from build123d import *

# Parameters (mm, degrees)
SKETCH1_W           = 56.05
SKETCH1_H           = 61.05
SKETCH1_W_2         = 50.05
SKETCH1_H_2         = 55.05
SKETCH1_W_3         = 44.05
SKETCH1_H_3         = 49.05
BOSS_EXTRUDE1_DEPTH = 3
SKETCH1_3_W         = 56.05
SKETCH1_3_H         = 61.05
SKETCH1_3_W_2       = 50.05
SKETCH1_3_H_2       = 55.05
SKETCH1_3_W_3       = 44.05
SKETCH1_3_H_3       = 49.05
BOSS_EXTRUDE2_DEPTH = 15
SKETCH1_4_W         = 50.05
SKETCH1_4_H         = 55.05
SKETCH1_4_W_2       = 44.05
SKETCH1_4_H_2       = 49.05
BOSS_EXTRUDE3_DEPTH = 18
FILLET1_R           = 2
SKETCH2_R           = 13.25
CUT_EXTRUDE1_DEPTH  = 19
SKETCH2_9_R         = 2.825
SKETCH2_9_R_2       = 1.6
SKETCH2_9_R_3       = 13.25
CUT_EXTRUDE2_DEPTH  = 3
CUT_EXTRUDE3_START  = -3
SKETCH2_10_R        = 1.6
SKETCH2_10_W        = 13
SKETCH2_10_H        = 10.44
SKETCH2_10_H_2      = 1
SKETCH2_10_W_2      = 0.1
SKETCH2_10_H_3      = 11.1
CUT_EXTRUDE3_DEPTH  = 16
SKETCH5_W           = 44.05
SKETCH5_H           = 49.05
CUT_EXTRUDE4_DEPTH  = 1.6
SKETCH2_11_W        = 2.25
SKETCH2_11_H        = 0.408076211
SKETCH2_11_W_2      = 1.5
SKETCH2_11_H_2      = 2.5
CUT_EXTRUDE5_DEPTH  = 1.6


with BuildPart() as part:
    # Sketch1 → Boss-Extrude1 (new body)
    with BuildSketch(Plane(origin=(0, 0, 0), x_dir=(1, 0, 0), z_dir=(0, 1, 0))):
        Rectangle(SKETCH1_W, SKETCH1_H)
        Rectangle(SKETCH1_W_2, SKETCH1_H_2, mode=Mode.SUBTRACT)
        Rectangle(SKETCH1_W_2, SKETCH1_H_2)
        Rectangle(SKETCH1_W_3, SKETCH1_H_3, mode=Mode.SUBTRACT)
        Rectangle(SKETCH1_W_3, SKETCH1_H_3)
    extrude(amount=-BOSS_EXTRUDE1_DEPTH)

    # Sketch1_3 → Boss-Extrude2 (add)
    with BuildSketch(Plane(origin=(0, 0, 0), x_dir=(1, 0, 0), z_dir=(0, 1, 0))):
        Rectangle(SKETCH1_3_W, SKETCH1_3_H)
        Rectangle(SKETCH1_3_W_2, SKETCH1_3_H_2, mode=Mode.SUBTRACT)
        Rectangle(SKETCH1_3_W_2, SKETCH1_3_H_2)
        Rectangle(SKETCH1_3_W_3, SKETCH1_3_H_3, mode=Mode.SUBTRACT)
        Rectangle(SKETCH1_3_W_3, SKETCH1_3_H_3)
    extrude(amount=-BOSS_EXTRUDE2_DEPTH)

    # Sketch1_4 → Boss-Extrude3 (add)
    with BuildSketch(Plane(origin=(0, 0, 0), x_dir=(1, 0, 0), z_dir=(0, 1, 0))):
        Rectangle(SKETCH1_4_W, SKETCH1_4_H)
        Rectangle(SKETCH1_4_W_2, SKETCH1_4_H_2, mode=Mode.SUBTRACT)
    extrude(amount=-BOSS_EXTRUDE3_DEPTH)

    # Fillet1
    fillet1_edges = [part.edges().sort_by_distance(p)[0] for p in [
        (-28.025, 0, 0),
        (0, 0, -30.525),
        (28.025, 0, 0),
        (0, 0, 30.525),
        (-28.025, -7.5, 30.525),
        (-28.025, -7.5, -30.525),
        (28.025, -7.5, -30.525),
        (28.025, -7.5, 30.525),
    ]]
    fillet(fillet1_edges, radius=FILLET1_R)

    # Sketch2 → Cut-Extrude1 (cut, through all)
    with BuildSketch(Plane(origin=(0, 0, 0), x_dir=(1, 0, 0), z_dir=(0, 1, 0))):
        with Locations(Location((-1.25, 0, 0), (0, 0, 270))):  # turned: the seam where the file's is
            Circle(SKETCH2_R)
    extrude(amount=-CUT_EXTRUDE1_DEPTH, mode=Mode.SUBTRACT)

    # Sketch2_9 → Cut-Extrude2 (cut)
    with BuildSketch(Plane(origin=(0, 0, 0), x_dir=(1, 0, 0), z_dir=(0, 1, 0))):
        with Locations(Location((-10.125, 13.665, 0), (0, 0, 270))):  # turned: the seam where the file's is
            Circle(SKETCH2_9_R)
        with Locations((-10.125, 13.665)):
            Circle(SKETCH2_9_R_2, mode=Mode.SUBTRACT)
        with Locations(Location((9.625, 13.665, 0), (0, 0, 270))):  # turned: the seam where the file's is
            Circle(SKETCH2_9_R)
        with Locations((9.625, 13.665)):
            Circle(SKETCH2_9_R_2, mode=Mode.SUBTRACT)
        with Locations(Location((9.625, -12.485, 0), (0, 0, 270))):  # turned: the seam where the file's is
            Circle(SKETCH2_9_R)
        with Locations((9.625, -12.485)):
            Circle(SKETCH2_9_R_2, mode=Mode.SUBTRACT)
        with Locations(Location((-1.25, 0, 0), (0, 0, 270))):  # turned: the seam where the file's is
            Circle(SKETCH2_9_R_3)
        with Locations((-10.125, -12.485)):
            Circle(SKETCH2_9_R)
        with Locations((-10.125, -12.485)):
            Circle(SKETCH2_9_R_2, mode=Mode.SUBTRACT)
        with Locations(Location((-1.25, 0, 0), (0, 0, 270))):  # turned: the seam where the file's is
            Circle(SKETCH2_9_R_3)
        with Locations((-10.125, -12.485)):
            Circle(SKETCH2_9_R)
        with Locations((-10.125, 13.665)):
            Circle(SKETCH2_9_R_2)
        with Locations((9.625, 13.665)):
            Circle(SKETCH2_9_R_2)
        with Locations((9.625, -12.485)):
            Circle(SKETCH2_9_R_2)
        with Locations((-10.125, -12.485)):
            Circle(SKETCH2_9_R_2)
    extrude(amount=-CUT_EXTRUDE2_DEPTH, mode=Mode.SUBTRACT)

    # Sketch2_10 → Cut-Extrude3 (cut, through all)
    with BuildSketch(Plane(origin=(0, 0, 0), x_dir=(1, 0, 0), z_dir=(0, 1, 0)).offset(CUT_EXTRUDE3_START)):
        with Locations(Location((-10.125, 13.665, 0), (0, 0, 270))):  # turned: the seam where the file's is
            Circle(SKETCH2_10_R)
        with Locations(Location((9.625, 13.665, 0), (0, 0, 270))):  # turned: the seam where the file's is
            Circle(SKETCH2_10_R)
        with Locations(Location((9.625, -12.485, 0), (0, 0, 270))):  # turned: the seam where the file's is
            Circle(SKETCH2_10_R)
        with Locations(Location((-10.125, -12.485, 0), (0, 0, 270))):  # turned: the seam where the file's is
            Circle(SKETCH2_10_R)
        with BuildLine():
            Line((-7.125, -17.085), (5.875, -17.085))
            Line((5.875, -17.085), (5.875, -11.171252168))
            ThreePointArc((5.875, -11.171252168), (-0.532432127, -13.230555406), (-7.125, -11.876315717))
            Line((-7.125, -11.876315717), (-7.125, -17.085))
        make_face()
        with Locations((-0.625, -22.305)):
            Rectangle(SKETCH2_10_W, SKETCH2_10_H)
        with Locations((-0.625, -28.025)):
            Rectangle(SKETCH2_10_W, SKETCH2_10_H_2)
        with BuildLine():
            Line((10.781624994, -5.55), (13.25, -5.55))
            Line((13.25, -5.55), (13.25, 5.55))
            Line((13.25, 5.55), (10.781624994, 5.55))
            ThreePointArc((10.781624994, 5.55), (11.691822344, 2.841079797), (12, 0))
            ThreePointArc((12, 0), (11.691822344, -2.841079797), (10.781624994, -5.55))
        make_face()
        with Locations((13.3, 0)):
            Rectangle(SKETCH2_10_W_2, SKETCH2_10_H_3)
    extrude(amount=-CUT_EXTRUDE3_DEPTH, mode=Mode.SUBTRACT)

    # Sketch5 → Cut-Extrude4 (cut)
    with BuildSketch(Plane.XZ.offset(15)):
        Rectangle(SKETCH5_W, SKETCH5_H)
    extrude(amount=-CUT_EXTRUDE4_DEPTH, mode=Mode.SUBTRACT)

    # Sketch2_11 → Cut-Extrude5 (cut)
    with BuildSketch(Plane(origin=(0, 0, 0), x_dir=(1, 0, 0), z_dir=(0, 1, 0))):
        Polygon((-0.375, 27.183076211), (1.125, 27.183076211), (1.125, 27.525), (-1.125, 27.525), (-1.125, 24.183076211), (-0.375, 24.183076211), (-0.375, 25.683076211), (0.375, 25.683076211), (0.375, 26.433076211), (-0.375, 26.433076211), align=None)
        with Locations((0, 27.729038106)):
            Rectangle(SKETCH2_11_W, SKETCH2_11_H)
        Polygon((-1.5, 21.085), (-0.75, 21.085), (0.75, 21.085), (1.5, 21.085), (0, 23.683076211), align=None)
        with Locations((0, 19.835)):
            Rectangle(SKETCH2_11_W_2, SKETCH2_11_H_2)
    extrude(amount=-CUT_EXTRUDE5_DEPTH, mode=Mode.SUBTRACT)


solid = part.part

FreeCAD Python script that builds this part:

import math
import FreeCAD as App
import Part
import Sketcher
Q = App.Units.Quantity


def edges_at(feature, points):
    """Names of the edges that pass closest to the given points."""
    edges = feature.Shape.Edges
    near = lambda p: min(range(len(edges)), key=lambda i: edges[i].distToShape(Part.Vertex(*p))[0])
    return sorted({f"Edge{near(p) + 1}" for p in points})

doc = App.newDocument("Part")
params = doc.addObject("Spreadsheet::Sheet", "Params")
for row, (alias, value) in enumerate([
    ("sketch1_width", "56.05 mm"),
    ("sketch1_height", "61.05 mm"),
    ("pad1_length", "3 mm"),
    ("sketch2_width", "56.05 mm"),
    ("sketch2_height", "61.05 mm"),
    ("pad2_length", "15 mm"),
    ("sketch3_width", "50.05 mm"),
    ("sketch3_height", "55.05 mm"),
    ("pad3_length", "18 mm"),
    ("fillet_radius", "2 mm"),
    ("sketch4_diameter", "26.5 mm"),
    ("sketch5_diameter", "5.65 mm"),
    ("sketch5_radius", "13.25 mm"),
    ("pocket2_length", "3 mm"),
    ("sketch6_diameter", "3.2 mm"),
    ("sketch6_width", "13 mm"),
    ("sketch6_radius", "13.25 mm"),
    ("sketch6_height", "11.1 mm"),
    ("sketch7_width", "44.05 mm"),
    ("sketch7_height", "49.05 mm"),
    ("pocket4_length", "1.6 mm"),
    ("sketch8_length", "3 mm"),
    ("sketch8_width", "1.5 mm"),
    ("sketch8_height", "2.5 mm"),
    ("pocket5_length", "1.6 mm"),
], start=1):
    params.set(f"A{row}", alias)
    params.set(f"B{row}", "=" + value)
    params.setAlias(f"B{row}", alias)

body = doc.addObject("PartDesign::Body", "Body")

# Sketch on XZ plane
sketch1 = body.newObject("Sketcher::SketchObject", "Sketch")
sketch1.AttachmentSupport = (doc.getObject("XZ_Plane"), [""])
sketch1.MapMode = "FlatFace"
sketch1.addGeometry([
    Part.LineSegment(App.Vector(-28, -31, 0), App.Vector(-28, 31, 0)),
    Part.LineSegment(App.Vector(-28, 31, 0), App.Vector(28, 31, 0)),
    Part.LineSegment(App.Vector(28, 31, 0), App.Vector(28, -31, 0)),
    Part.LineSegment(App.Vector(28, -31, 0), App.Vector(-28, -31, 0)),
], False)
sketch1.addConstraint([
    Sketcher.Constraint("Coincident", 0, 2, 1, 1),
    Sketcher.Constraint("Coincident", 1, 2, 2, 1),
    Sketcher.Constraint("Coincident", 2, 2, 3, 1),
    Sketcher.Constraint("Coincident", 3, 2, 0, 1),
    Sketcher.Constraint("Vertical", 0),
    Sketcher.Constraint("Horizontal", 1),
    Sketcher.Constraint("Vertical", 2),
    Sketcher.Constraint("Horizontal", 3),
    Sketcher.Constraint("Symmetric", 0, 2, 2, 2, -1, 1),
    Sketcher.Constraint("DistanceX", 1, 1, 1, 2, 56.05),
    Sketcher.Constraint("DistanceY", 0, 1, 0, 2, 61.05),
])
sketch1.setExpression("Constraints[9]", "Params.sketch1_width")
sketch1.setExpression("Constraints[10]", "Params.sketch1_height")
pad1 = body.newObject("PartDesign::Pad", "Pad")
pad1.Profile = sketch1
pad1.setExpression("Length", "Params.pad1_length")

# Sketch on XZ plane
sketch2 = body.newObject("Sketcher::SketchObject", "Sketch001")
sketch2.AttachmentSupport = (doc.getObject("XZ_Plane"), [""])
sketch2.MapMode = "FlatFace"
sketch2.addGeometry([
    Part.LineSegment(App.Vector(-28, -31, 0), App.Vector(-28, 31, 0)),
    Part.LineSegment(App.Vector(-28, 31, 0), App.Vector(28, 31, 0)),
    Part.LineSegment(App.Vector(28, 31, 0), App.Vector(28, -31, 0)),
    Part.LineSegment(App.Vector(28, -31, 0), App.Vector(-28, -31, 0)),
], False)
sketch2.addConstraint([
    Sketcher.Constraint("Coincident", 0, 2, 1, 1),
    Sketcher.Constraint("Coincident", 1, 2, 2, 1),
    Sketcher.Constraint("Coincident", 2, 2, 3, 1),
    Sketcher.Constraint("Coincident", 3, 2, 0, 1),
    Sketcher.Constraint("Vertical", 0),
    Sketcher.Constraint("Horizontal", 1),
    Sketcher.Constraint("Vertical", 2),
    Sketcher.Constraint("Horizontal", 3),
    Sketcher.Constraint("Symmetric", 0, 2, 2, 2, -1, 1),
    Sketcher.Constraint("DistanceX", 1, 1, 1, 2, 56.05),
    Sketcher.Constraint("DistanceY", 0, 1, 0, 2, 61.05),
])
sketch2.setExpression("Constraints[9]", "Params.sketch2_width")
sketch2.setExpression("Constraints[10]", "Params.sketch2_height")
pad2 = body.newObject("PartDesign::Pad", "Pad001")
pad2.Profile = sketch2
pad2.setExpression("Length", "Params.pad2_length")

# Sketch on XZ plane
sketch3 = body.newObject("Sketcher::SketchObject", "Sketch002")
sketch3.AttachmentSupport = (doc.getObject("XZ_Plane"), [""])
sketch3.MapMode = "FlatFace"
sketch3.addGeometry([
    Part.LineSegment(App.Vector(-25, -28, 0), App.Vector(-25, 28, 0)),  # 0
    Part.LineSegment(App.Vector(-25, 28, 0), App.Vector(25, 28, 0)),  # 1
    Part.LineSegment(App.Vector(25, 28, 0), App.Vector(25, -28, 0)),  # 2
    Part.LineSegment(App.Vector(25, -28, 0), App.Vector(-25, -28, 0)),  # 3
    Part.LineSegment(App.Vector(22, 25, 0), App.Vector(-22, 25, 0)),  # 4
    Part.LineSegment(App.Vector(-22, 25, 0), App.Vector(-22, -25, 0)),  # 5
    Part.LineSegment(App.Vector(-22, -25, 0), App.Vector(22, -25, 0)),  # 6
    Part.LineSegment(App.Vector(22, -25, 0), App.Vector(22, 25, 0)),  # 7
], False)
sketch3.addConstraint([
    Sketcher.Constraint("Coincident", 0, 2, 1, 1),
    Sketcher.Constraint("Coincident", 1, 2, 2, 1),
    Sketcher.Constraint("Coincident", 2, 2, 3, 1),
    Sketcher.Constraint("Coincident", 3, 2, 0, 1),
    Sketcher.Constraint("Coincident", 4, 2, 5, 1),
    Sketcher.Constraint("Coincident", 5, 2, 6, 1),
    Sketcher.Constraint("Coincident", 6, 2, 7, 1),
    Sketcher.Constraint("Coincident", 7, 2, 4, 1),
    Sketcher.Constraint("Vertical", 0),
    Sketcher.Constraint("Horizontal", 1),
    Sketcher.Constraint("Vertical", 2),
    Sketcher.Constraint("Horizontal", 3),
    Sketcher.Constraint("Horizontal", 4),
    Sketcher.Constraint("Vertical", 5),
    Sketcher.Constraint("Horizontal", 6),
    Sketcher.Constraint("Vertical", 7),
    Sketcher.Constraint("Symmetric", 0, 2, 2, 2, -1, 1),
    Sketcher.Constraint("Symmetric", 4, 2, 6, 2, -1, 1),
    Sketcher.Constraint("DistanceX", 0, 2, 4, 2, 3.0),
    Sketcher.Constraint("DistanceY", 4, 2, 0, 2, 3.0),
    Sketcher.Constraint("DistanceX", 1, 1, 1, 2, 50.05),
    Sketcher.Constraint("DistanceY", 0, 1, 0, 2, 55.05),
])
sketch3.setExpression("Constraints[20]", "Params.sketch3_width")
sketch3.setExpression("Constraints[21]", "Params.sketch3_height")
pad3 = body.newObject("PartDesign::Pad", "Pad002")
pad3.Profile = sketch3
pad3.setExpression("Length", "Params.pad3_length")
doc.recompute()

fillet = body.newObject("PartDesign::Fillet", "Fillet")
fillet.Base = (pad3, edges_at(pad3, [
    (-28.025, 0, 0),
    (0, 0, -30.525),
    (28.025, 0, 0),
    (0, 0, 30.525),
    (-28.025, -7.5, 30.525),
    (-28.025, -7.5, -30.525),
    (28.025, -7.5, -30.525),
    (28.025, -7.5, 30.525),
]))
fillet.setExpression("Radius", "Params.fillet_radius")

# Sketch on XZ plane
sketch4 = body.newObject("Sketcher::SketchObject", "Sketch003")
sketch4.AttachmentSupport = (doc.getObject("XZ_Plane"), [""])
sketch4.MapMode = "FlatFace"
sketch4.addGeometry(Part.Circle(App.Vector(-1, 0, 0), App.Vector(0, 0, 1), 13), False)
sketch4.addConstraint([
    Sketcher.Constraint("PointOnObject", 0, 3, -1),
    Sketcher.Constraint("Diameter", 0, 26.5),
    Sketcher.Constraint("DistanceX", 0, 3, -1, 1, 1.25),
])
sketch4.setExpression("Constraints[1]", "Params.sketch4_diameter")
pocket1 = body.newObject("PartDesign::Pocket", "Pocket")
pocket1.Profile = sketch4
pocket1.Type = "ThroughAll"
pocket1.Reversed = True

# Sketch on XZ plane
sketch5 = body.newObject("Sketcher::SketchObject", "Sketch004")
sketch5.AttachmentSupport = (doc.getObject("XZ_Plane"), [""])
sketch5.MapMode = "FlatFace"
sketch5.addGeometry([
    Part.Circle(App.Vector(-10.1, -13.7, 0), App.Vector(0, 0, 1), 2.8),  # 0
    Part.Circle(App.Vector(9.6, -13.7, 0), App.Vector(0, 0, 1), 2.8),  # 1
    Part.Circle(App.Vector(9.6, 12.5, 0), App.Vector(0, 0, 1), 2.8),  # 2
    Part.ArcOfCircle(Part.Circle(App.Vector(-1.2, 0, 0), App.Vector(0, 0, 1), 13.2), math.radians(133), math.radians(478)),  # 3
    Part.ArcOfCircle(Part.Circle(App.Vector(-10.1, 12.5, 0), App.Vector(0, 0, 1), 2.8), math.radians(-15), math.radians(266)),  # 4
], False)
sketch5.addConstraint([
    Sketcher.Constraint("Coincident", 3, 1, 4, 2),
    Sketcher.Constraint("Coincident", 4, 1, 3, 2),
    Sketcher.Constraint("Equal", 0, 1),
    Sketcher.Constraint("Equal", 1, 2),
    Sketcher.Constraint("Equal", 2, 4),
    Sketcher.Constraint("PointOnObject", 3, 3, -1),
    Sketcher.Constraint("Horizontal", 0, 3, 1, 3),
    Sketcher.Constraint("Horizontal", 2, 3, 4, 3),
    Sketcher.Constraint("Vertical", 1, 3, 2, 3),
    Sketcher.Constraint("Vertical", 0, 3, 4, 3),
    Sketcher.Constraint("Diameter", 0, 5.65),
    Sketcher.Constraint("Radius", 3, 13.25),
    Sketcher.Constraint("DistanceX", 3, 3, -1, 1, 1.25),
    Sketcher.Constraint("DistanceX", 0, 3, 1, 3, 19.75),
    Sketcher.Constraint("DistanceY", 1, 3, 2, 3, 26.15),
    Sketcher.Constraint("DistanceX", 0, 3, -1, 1, 10.125),
    Sketcher.Constraint("DistanceY", 0, 3, -1, 1, 13.665),
])
sketch5.setExpression("Constraints[10]", "Params.sketch5_diameter")
sketch5.setExpression("Constraints[11]", "Params.sketch5_radius")
pocket2 = body.newObject("PartDesign::Pocket", "Pocket001")
pocket2.Profile = sketch5
pocket2.setExpression("Length", "Params.pocket2_length")
pocket2.Reversed = True

# Sketch on XZ plane
sketch6 = body.newObject("Sketcher::SketchObject", "Sketch005")
sketch6.AttachmentSupport = (doc.getObject("XZ_Plane"), [""])
sketch6.MapMode = "FlatFace"
sketch6.AttachmentOffset = App.Placement(App.Vector(0, 0, 3), App.Rotation())
sketch6.addGeometry([
    Part.Circle(App.Vector(-10.1, -13.7, 0), App.Vector(0, 0, 1), 1.6),  # 0
    Part.Circle(App.Vector(9.6, -13.7, 0), App.Vector(0, 0, 1), 1.6),  # 1
    Part.Circle(App.Vector(9.6, 12.5, 0), App.Vector(0, 0, 1), 1.6),  # 2
    Part.Circle(App.Vector(-10.1, 12.5, 0), App.Vector(0, 0, 1), 1.6),  # 3
    Part.ArcOfCircle(Part.Circle(App.Vector(-1.2, 0, 0), App.Vector(0, 0, 1), 13.3), math.radians(57), math.radians(116)),  # 4
    Part.LineSegment(App.Vector(-7.1, 11.9, 0), App.Vector(-7.1, 28.5, 0)),  # 5
    Part.LineSegment(App.Vector(-7.1, 28.5, 0), App.Vector(5.9, 28.5, 0)),  # 6
    Part.LineSegment(App.Vector(5.9, 28.5, 0), App.Vector(5.9, 11.2, 0)),  # 7
    Part.LineSegment(App.Vector(10.8, 5.5, 0), App.Vector(13.3, 5.5, 0)),  # 8
    Part.LineSegment(App.Vector(13.3, 5.5, 0), App.Vector(13.3, -5.5, 0)),  # 9
    Part.LineSegment(App.Vector(13.3, -5.5, 0), App.Vector(10.8, -5.5, 0)),  # 10
    Part.ArcOfCircle(Part.Circle(App.Vector(-1.3, 0, 0), App.Vector(0, 0, 1), 13.3), math.radians(-25), math.radians(0)),  # 11
    Part.ArcOfCircle(Part.Circle(App.Vector(-1.3, 0, 0), App.Vector(0, 0, 1), 13.3), math.radians(0), math.radians(25)),  # 12
], False)
sketch6.addConstraint([
    Sketcher.Constraint("Coincident", 4, 2, 5, 1),
    Sketcher.Constraint("Coincident", 5, 2, 6, 1),
    Sketcher.Constraint("Coincident", 6, 2, 7, 1),
    Sketcher.Constraint("Coincident", 7, 2, 4, 1),
    Sketcher.Constraint("Coincident", 8, 2, 9, 1),
    Sketcher.Constraint("Coincident", 9, 2, 10, 1),
    Sketcher.Constraint("Coincident", 10, 2, 11, 1),
    Sketcher.Constraint("Tangent", 11, 2, 12, 1),
    Sketcher.Constraint("Coincident", 12, 2, 8, 1),
    Sketcher.Constraint("Vertical", 5),
    Sketcher.Constraint("Horizontal", 6),
    Sketcher.Constraint("Vertical", 7),
    Sketcher.Constraint("Horizontal", 8),
    Sketcher.Constraint("Vertical", 9),
    Sketcher.Constraint("Horizontal", 10),
    Sketcher.Constraint("Coincident", 11, 3, 4, 3),
    Sketcher.Constraint("Equal", 0, 1),
    Sketcher.Constraint("Equal", 1, 2),
    Sketcher.Constraint("Equal", 2, 3),
    Sketcher.Constraint("Equal", 4, 11),
    Sketcher.Constraint("Equal", 11, 12),
    Sketcher.Constraint("Symmetric", 10, 2, 12, 2, -1),
    Sketcher.Constraint("PointOnObject", 11, 2, -1),
    Sketcher.Constraint("Horizontal", 0, 3, 1, 3),
    Sketcher.Constraint("Horizontal", 2, 3, 3, 3),
    Sketcher.Constraint("Vertical", 1, 3, 2, 3),
    Sketcher.Constraint("Vertical", 0, 3, 3, 3),
    Sketcher.Constraint("Diameter", 0, 3.2),
    Sketcher.Constraint("DistanceX", 6, 1, 6, 2, 13.0),
    Sketcher.Constraint("Radius", 4, 13.25),
    Sketcher.Constraint("DistanceY", 9, 2, 9, 1, 11.1),
    Sketcher.Constraint("DistanceX", -1, 1, 11, 2, 12.0),
    Sketcher.Constraint("DistanceX", 3, 3, 4, 2, 3.0),
    Sketcher.Constraint("DistanceX", 4, 3, 8, 2, 14.6),
    Sketcher.Constraint("DistanceX", 0, 3, 1, 3, 19.75),
    Sketcher.Constraint("DistanceY", 1, 3, 2, 3, 26.15),
    Sketcher.Constraint("DistanceY", 3, 3, 5, 2, 16.04),
    Sketcher.Constraint("DistanceX", 0, 3, -1, 1, 10.125),
    Sketcher.Constraint("DistanceY", 0, 3, -1, 1, 13.665),
])
sketch6.setExpression("Constraints[27]", "Params.sketch6_diameter")
sketch6.setExpression("Constraints[28]", "Params.sketch6_width")
sketch6.setExpression("Constraints[29]", "Params.sketch6_radius")
sketch6.setExpression("Constraints[30]", "Params.sketch6_height")
pocket3 = body.newObject("PartDesign::Pocket", "Pocket002")
pocket3.Profile = sketch6
pocket3.Type = "ThroughAll"
pocket3.Reversed = True

# Sketch on XZ plane
sketch7 = body.newObject("Sketcher::SketchObject", "Sketch006")
sketch7.AttachmentSupport = (doc.getObject("XZ_Plane"), [""])
sketch7.MapMode = "FlatFace"
sketch7.AttachmentOffset = App.Placement(App.Vector(0, 0, 15), App.Rotation())
sketch7.addGeometry([
    Part.LineSegment(App.Vector(-22, 25, 0), App.Vector(-22, -25, 0)),
    Part.LineSegment(App.Vector(-22, -25, 0), App.Vector(22, -25, 0)),
    Part.LineSegment(App.Vector(22, -25, 0), App.Vector(22, 25, 0)),
    Part.LineSegment(App.Vector(22, 25, 0), App.Vector(-22, 25, 0)),
], False)
sketch7.addConstraint([
    Sketcher.Constraint("Coincident", 0, 2, 1, 1),
    Sketcher.Constraint("Coincident", 1, 2, 2, 1),
    Sketcher.Constraint("Coincident", 2, 2, 3, 1),
    Sketcher.Constraint("Coincident", 3, 2, 0, 1),
    Sketcher.Constraint("Vertical", 0),
    Sketcher.Constraint("Horizontal", 1),
    Sketcher.Constraint("Vertical", 2),
    Sketcher.Constraint("Horizontal", 3),
    Sketcher.Constraint("Symmetric", 0, 2, 2, 2, -1, 1),
    Sketcher.Constraint("DistanceX", 1, 1, 1, 2, 44.05),
    Sketcher.Constraint("DistanceY", 0, 2, 0, 1, 49.05),
])
sketch7.setExpression("Constraints[9]", "Params.sketch7_width")
sketch7.setExpression("Constraints[10]", "Params.sketch7_height")
pocket4 = body.newObject("PartDesign::Pocket", "Pocket003")
pocket4.Profile = sketch7
pocket4.setExpression("Length", "Params.pocket4_length")

# Sketch on XZ plane
sketch8 = body.newObject("Sketcher::SketchObject", "Sketch007")
sketch8.AttachmentSupport = (doc.getObject("XZ_Plane"), [""])
sketch8.MapMode = "FlatFace"
sketch8.addGeometry([
    Part.LineSegment(App.Vector(-0.4, -27.2, 0), App.Vector(1.1, -27.2, 0)),  # 0
    Part.LineSegment(App.Vector(1.1, -27.2, 0), App.Vector(1.1, -27.9, 0)),  # 1
    Part.LineSegment(App.Vector(1.1, -27.9, 0), App.Vector(-1.1, -27.9, 0)),  # 2
    Part.LineSegment(App.Vector(-1.1, -27.9, 0), App.Vector(-1.1, -24.2, 0)),  # 3
    Part.LineSegment(App.Vector(-1.1, -24.2, 0), App.Vector(-0.4, -24.2, 0)),  # 4
    Part.LineSegment(App.Vector(-0.4, -24.2, 0), App.Vector(-0.4, -25.7, 0)),  # 5
    Part.LineSegment(App.Vector(-0.4, -25.7, 0), App.Vector(0.4, -25.7, 0)),  # 6
    Part.LineSegment(App.Vector(0.4, -25.7, 0), App.Vector(0.4, -26.4, 0)),  # 7
    Part.LineSegment(App.Vector(0.4, -26.4, 0), App.Vector(-0.4, -26.4, 0)),  # 8
    Part.LineSegment(App.Vector(-0.4, -26.4, 0), App.Vector(-0.4, -27.2, 0)),  # 9
    Part.LineSegment(App.Vector(-1.5, -21.1, 0), App.Vector(-0.8, -21.1, 0)),  # 10
    Part.LineSegment(App.Vector(-0.8, -21.1, 0), App.Vector(-0.8, -18.6, 0)),  # 11
    Part.LineSegment(App.Vector(-0.8, -18.6, 0), App.Vector(0.8, -18.6, 0)),  # 12
    Part.LineSegment(App.Vector(0.8, -18.6, 0), App.Vector(0.8, -21.1, 0)),  # 13
    Part.LineSegment(App.Vector(0.8, -21.1, 0), App.Vector(1.5, -21.1, 0)),  # 14
    Part.LineSegment(App.Vector(1.5, -21.1, 0), App.Vector(0, -23.7, 0)),  # 15
    Part.LineSegment(App.Vector(0, -23.7, 0), App.Vector(-1.5, -21.1, 0)),  # 16
], False)
sketch8.addConstraint([
    Sketcher.Constraint("Coincident", 0, 2, 1, 1),
    Sketcher.Constraint("Coincident", 1, 2, 2, 1),
    Sketcher.Constraint("Coincident", 2, 2, 3, 1),
    Sketcher.Constraint("Coincident", 3, 2, 4, 1),
    Sketcher.Constraint("Coincident", 4, 2, 5, 1),
    Sketcher.Constraint("Coincident", 5, 2, 6, 1),
    Sketcher.Constraint("Coincident", 6, 2, 7, 1),
    Sketcher.Constraint("Coincident", 7, 2, 8, 1),
    Sketcher.Constraint("Coincident", 8, 2, 9, 1),
    Sketcher.Constraint("Coincident", 9, 2, 0, 1),
    Sketcher.Constraint("Coincident", 10, 2, 11, 1),
    Sketcher.Constraint("Coincident", 11, 2, 12, 1),
    Sketcher.Constraint("Coincident", 12, 2, 13, 1),
    Sketcher.Constraint("Coincident", 13, 2, 14, 1),
    Sketcher.Constraint("Coincident", 14, 2, 15, 1),
    Sketcher.Constraint("Coincident", 15, 2, 16, 1),
    Sketcher.Constraint("Coincident", 16, 2, 10, 1),
    Sketcher.Constraint("Horizontal", 0),
    Sketcher.Constraint("Vertical", 1),
    Sketcher.Constraint("Horizontal", 2),
    Sketcher.Constraint("Vertical", 3),
    Sketcher.Constraint("Horizontal", 4),
    Sketcher.Constraint("Vertical", 5),
    Sketcher.Constraint("Horizontal", 6),
    Sketcher.Constraint("Vertical", 7),
    Sketcher.Constraint("Horizontal", 8),
    Sketcher.Constraint("Vertical", 9),
    Sketcher.Constraint("Horizontal", 10),
    Sketcher.Constraint("Vertical", 11),
    Sketcher.Constraint("Horizontal", 12),
    Sketcher.Constraint("Vertical", 13),
    Sketcher.Constraint("Horizontal", 14),
    Sketcher.Constraint("Symmetric", 10, 2, 13, 2, -2),
    Sketcher.Constraint("PointOnObject", 15, 2, -2),
    Sketcher.Constraint("Vertical", 5, 2, 8, 2),
    Sketcher.Constraint("Equal", 4, 6),
    Sketcher.Constraint("Equal", 8, 10),
    Sketcher.Constraint("Equal", 0, 12),
    Sketcher.Constraint("Equal", 10, 14),
    Sketcher.Constraint("Equal", 14, 1),
    Sketcher.Constraint("Equal", 12, 5),
    Sketcher.Constraint("Equal", 1, 7),
    Sketcher.Constraint("Equal", 7, 9),
    Sketcher.Constraint("Angle", 15, Q("-120 deg")),
    Sketcher.Constraint("Distance", 15, 3.0),
    Sketcher.Constraint("DistanceX", 0, 1, 0, 2, 1.5),
    Sketcher.Constraint("DistanceY", 11, 1, 11, 2, 2.5),
    Sketcher.Constraint("DistanceY", 5, 2, 15, 2, 2.0),
    Sketcher.Constraint("DistanceX", -1, 1, 0, 2, 1.125),
    Sketcher.Constraint("DistanceY", 10, 2, -1, 1, 21.085),
])
sketch8.setExpression("Constraints[44]", "Params.sketch8_length")
sketch8.setExpression("Constraints[45]", "Params.sketch8_width")
sketch8.setExpression("Constraints[46]", "Params.sketch8_height")
pocket5 = body.newObject("PartDesign::Pocket", "Pocket004")
pocket5.Profile = sketch8
pocket5.setExpression("Length", "Params.pocket5_length")
pocket5.Reversed = True

doc.recompute()
